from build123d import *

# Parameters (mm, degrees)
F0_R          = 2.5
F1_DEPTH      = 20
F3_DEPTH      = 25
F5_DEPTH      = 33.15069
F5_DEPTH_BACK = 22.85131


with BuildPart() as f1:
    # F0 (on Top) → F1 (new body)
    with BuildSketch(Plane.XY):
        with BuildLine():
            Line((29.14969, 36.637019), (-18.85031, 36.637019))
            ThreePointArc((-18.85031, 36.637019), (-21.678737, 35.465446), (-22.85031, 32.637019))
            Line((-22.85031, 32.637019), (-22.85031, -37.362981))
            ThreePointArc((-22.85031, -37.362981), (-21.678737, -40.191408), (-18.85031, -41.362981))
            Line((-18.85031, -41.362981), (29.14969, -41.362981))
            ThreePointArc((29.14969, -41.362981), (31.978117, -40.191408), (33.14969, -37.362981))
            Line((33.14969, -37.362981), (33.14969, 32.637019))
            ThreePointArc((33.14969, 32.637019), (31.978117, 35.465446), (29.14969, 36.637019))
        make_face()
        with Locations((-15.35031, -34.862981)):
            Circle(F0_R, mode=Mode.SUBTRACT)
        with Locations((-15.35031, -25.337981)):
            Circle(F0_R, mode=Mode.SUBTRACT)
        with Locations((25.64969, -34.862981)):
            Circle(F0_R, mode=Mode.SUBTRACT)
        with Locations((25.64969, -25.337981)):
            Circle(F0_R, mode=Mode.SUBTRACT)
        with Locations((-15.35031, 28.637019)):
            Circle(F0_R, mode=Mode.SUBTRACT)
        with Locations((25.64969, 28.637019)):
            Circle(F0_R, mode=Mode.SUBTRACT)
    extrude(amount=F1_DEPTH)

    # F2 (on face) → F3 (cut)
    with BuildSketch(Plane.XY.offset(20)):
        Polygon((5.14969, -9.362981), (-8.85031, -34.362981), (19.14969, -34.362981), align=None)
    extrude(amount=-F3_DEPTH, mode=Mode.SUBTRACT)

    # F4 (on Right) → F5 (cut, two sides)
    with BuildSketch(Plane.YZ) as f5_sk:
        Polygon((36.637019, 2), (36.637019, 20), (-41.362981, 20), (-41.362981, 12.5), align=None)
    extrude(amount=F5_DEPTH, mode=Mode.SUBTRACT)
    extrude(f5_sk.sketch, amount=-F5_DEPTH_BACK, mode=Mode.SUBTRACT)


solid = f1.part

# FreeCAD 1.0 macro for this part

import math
import FreeCAD as App
import Part
import Sketcher
from FreeCAD import Vector
Q = App.Units.Quantity


def add_polygon(sketch, points):
    """Adds a closed chain of lines whose ends are joined by coincident constraints."""
    first, n = sketch.GeometryCount, len(points)
    for a, b in zip(points, points[1:] + points[:1]):
        sketch.addGeometry(Part.LineSegment(App.Vector(*a, 0), App.Vector(*b, 0)), False)
    for i in range(n):
        sketch.addConstraint(Sketcher.Constraint("Coincident", first + i, 2, first + (i + 1) % n, 1))

doc = App.newDocument("Part")
body = doc.addObject("PartDesign::Body", "Body")

sketch1 = body.newObject("Sketcher::SketchObject", "Sketch")
sketch1.AttachmentSupport = (doc.getObject("XY_Plane"), [""])
sketch1.MapMode = "FlatFace"
sketch1.addGeometry(Part.LineSegment(Vector(29.1, 36.6, 0), Vector(-18.9, 36.6, 0)), False)
sketch1.addGeometry(Part.ArcOfCircle(Part.Circle(Vector(-18.9, 32.6, 0), Vector(0, 0, 1), 4), math.radians(90), math.radians(180)), False)
sketch1.addGeometry(Part.LineSegment(Vector(-22.9, 32.6, 0), Vector(-22.9, -37.4, 0)), False)
sketch1.addGeometry(Part.ArcOfCircle(Part.Circle(Vector(-18.9, -37.4, 0), Vector(0, 0, 1), 4), math.radians(-180), math.radians(-90)), False)
sketch1.addGeometry(Part.LineSegment(Vector(-18.9, -41.4, 0), Vector(29.1, -41.4, 0)), False)
sketch1.addGeometry(Part.ArcOfCircle(Part.Circle(Vector(29.1, -37.4, 0), Vector(0, 0, 1), 4), math.radians(-90), math.radians(0)), False)
sketch1.addGeometry(Part.LineSegment(Vector(33.1, -37.4, 0), Vector(33.1, 32.6, 0)), False)
sketch1.addGeometry(Part.ArcOfCircle(Part.Circle(Vector(29.1, 32.6, 0), Vector(0, 0, 1), 4), math.radians(0), math.radians(90)), False)
sketch1.addGeometry(Part.Circle(Vector(-15.4, -34.9, 0), Vector(0, 0, 1), 2.5), False)
sketch1.addGeometry(Part.Circle(Vector(-15.4, -25.3, 0), Vector(0, 0, 1), 2.5), False)
sketch1.addGeometry(Part.Circle(Vector(25.6, -34.9, 0), Vector(0, 0, 1), 2.5), False)
sketch1.addGeometry(Part.Circle(Vector(25.6, -25.3, 0), Vector(0, 0, 1), 2.5), False)
sketch1.addGeometry(Part.Circle(Vector(-15.4, 28.6, 0), Vector(0, 0, 1), 2.5), False)
sketch1.addGeometry(Part.Circle(Vector(25.6, 28.6, 0), Vector(0, 0, 1), 2.5), False)
sketch1.addConstraint(Sketcher.Constraint("Tangent", 0, 2, 1, 1))
sketch1.addConstraint(Sketcher.Constraint("Tangent", 1, 2, 2, 1))
sketch1.addConstraint(Sketcher.Constraint("Tangent", 2, 2, 3, 1))
sketch1.addConstraint(Sketcher.Constraint("Tangent", 3, 2, 4, 1))
sketch1.addConstraint(Sketcher.Constraint("Tangent", 4, 2, 5, 1))
sketch1.addConstraint(Sketcher.Constraint("Tangent", 5, 2, 6, 1))
sketch1.addConstraint(Sketcher.Constraint("Tangent", 6, 2, 7, 1))
sketch1.addConstraint(Sketcher.Constraint("Tangent", 7, 2, 0, 1))
sketch1.addConstraint(Sketcher.Constraint("Horizontal", 0))
sketch1.addConstraint(Sketcher.Constraint("Vertical", 2))
sketch1.addConstraint(Sketcher.Constraint("Horizontal", 4))
sketch1.addConstraint(Sketcher.Constraint("Vertical", 6))
sketch1.addConstraint(Sketcher.Constraint("Equal", 1, 3))
sketch1.addConstraint(Sketcher.Constraint("Equal", 3, 5))
sketch1.addConstraint(Sketcher.Constraint("Equal", 5, 7))
sketch1.addConstraint(Sketcher.Constraint("Equal", 8, 9))
sketch1.addConstraint(Sketcher.Constraint("Equal", 9, 10))
sketch1.addConstraint(Sketcher.Constraint("Equal", 10, 11))
sketch1.addConstraint(Sketcher.Constraint("Equal", 11, 12))
sketch1.addConstraint(Sketcher.Constraint("Equal", 12, 13))
sketch1.addConstraint(Sketcher.Constraint("Horizontal", 8, 3, 10, 3))
sketch1.addConstraint(Sketcher.Constraint("Horizontal", 9, 3, 11, 3))
sketch1.addConstraint(Sketcher.Constraint("Horizontal", 12, 3, 13, 3))
sketch1.addConstraint(Sketcher.Constraint("Vertical", 8, 3, 9, 3))
sketch1.addConstraint(Sketcher.Constraint("Vertical", 10, 3, 11, 3))
sketch1.addConstraint(Sketcher.Constraint("Vertical", 9, 3, 12, 3))
sketch1.addConstraint(Sketcher.Constraint("Vertical", 11, 3, 13, 3))
sketch1.addConstraint(Sketcher.Constraint("Diameter", 8, Q("5 mm")))
sketch1.addConstraint(Sketcher.Constraint("Radius", 1, Q("4 mm")))
sketch1.addConstraint(Sketcher.Constraint("DistanceX", 0, 2, 0, 1, Q("48 mm")))
sketch1.addConstraint(Sketcher.Constraint("DistanceY", 2, 2, 2, 1, Q("70 mm")))
sketch1.addConstraint(Sketcher.Constraint("DistanceX", 8, 3, 10, 3, Q("41 mm")))
sketch1.addConstraint(Sketcher.Constraint("DistanceY", 12, 3, 1, 3, Q("4 mm")))
sketch1.addConstraint(Sketcher.Constraint("DistanceX", 3, 3, 8, 3, Q("3.5 mm")))
sketch1.addConstraint(Sketcher.Constraint("DistanceY", 3, 3, 8, 3, Q("2.5 mm")))
sketch1.addConstraint(Sketcher.Constraint("DistanceY", 8, 3, 9, 3, Q("9.525 mm")))
sketch1.addConstraint(Sketcher.Constraint("DistanceX", 1, 3, -1, 1, Q("18.85031 mm")))
sketch1.addConstraint(Sketcher.Constraint("DistanceY", -1, 1, 1, 3, Q("32.637019 mm")))
pad1 = body.newObject("PartDesign::Pad", "Pad")
pad1.Profile = sketch1
pad1.Length = 20

sketch2 = body.newObject("Sketcher::SketchObject", "Sketch001")
sketch2.AttachmentSupport = (doc.getObject("XY_Plane"), [""])
sketch2.MapMode = "FlatFace"
sketch2.AttachmentOffset = App.Placement(Vector(0, 0, 20), App.Rotation())
add_polygon(sketch2, [(5, -9), (-9, -34), (19, -34)])
sketch2.addConstraint(Sketcher.Constraint("Horizontal", 1))
sketch2.addConstraint(Sketcher.Constraint("Equal", 0, 2))
sketch2.addConstraint(Sketcher.Constraint("DistanceX", 1, 1, 1, 2, Q("28 mm")))
sketch2.addConstraint(Sketcher.Constraint("DistanceY", 0, 2, 2, 2, Q("25 mm")))
sketch2.addConstraint(Sketcher.Constraint("DistanceX", 0, 2, -1, 1, Q("8.85031 mm")))
sketch2.addConstraint(Sketcher.Constraint("DistanceY", 0, 2, -1, 1, Q("34.362981 mm")))
pocket1 = body.newObject("PartDesign::Pocket", "Pocket")
pocket1.Profile = sketch2
pocket1.Length = 25

sketch3 = body.newObject("Sketcher::SketchObject", "Sketch002")
sketch3.AttachmentSupport = (doc.getObject("YZ_Plane"), [""])
sketch3.MapMode = "FlatFace"
add_polygon(sketch3, [(37, 2), (37, 20), (-41, 20), (-41, 12)])
sketch3.addConstraint(Sketcher.Constraint("Vertical", 0))
sketch3.addConstraint(Sketcher.Constraint("Horizontal", 1))
sketch3.addConstraint(Sketcher.Constraint("Vertical", 2))
sketch3.addConstraint(Sketcher.Constraint("DistanceX", 1, 2, 1, 1, Q("78 mm")))
sketch3.addConstraint(Sketcher.Constraint("DistanceY", 0, 1, 0, 2, Q("18 mm")))
sketch3.addConstraint(Sketcher.Constraint("DistanceY", 2, 2, 2, 1, Q("7.5 mm")))
sketch3.addConstraint(Sketcher.Constraint("DistanceY", -1, 1, 0, 2, Q("20 mm")))
sketch3.addConstraint(Sketcher.Constraint("DistanceX", -1, 1, 0, 2, Q("36.637019 mm")))
pocket2 = body.newObject("PartDesign::Pocket", "Pocket001")
pocket2.Profile = sketch3
pocket2.Type = "ThroughAll"
pocket2.Midplane = True

doc.recompute()
